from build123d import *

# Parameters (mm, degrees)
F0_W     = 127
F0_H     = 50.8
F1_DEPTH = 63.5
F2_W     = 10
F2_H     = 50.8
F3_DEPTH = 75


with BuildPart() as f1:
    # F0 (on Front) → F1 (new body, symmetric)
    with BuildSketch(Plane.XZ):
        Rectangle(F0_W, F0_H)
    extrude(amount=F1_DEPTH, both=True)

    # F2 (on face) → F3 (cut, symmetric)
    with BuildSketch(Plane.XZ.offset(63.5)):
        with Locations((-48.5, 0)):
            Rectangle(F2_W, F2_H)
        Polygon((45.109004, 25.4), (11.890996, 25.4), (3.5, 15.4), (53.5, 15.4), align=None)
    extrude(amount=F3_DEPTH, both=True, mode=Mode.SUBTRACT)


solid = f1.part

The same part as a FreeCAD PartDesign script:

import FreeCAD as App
import Part
import Sketcher

V = App.Vector
Q = App.Units.Quantity

doc = App.newDocument("Part")
body = doc.addObject("PartDesign::Body", "Body")

# Sketch on XZ plane
sketch1 = body.newObject("Sketcher::SketchObject", "Sketch")
sketch1.AttachmentSupport = (doc.getObject("XZ_Plane"), [""])
sketch1.MapMode = "FlatFace"
sketch1.addGeometry([
    Part.LineSegment(V(-64, 25, 0), V(-64, -25, 0)),
    Part.LineSegment(V(-64, -25, 0), V(64, -25, 0)),
    Part.LineSegment(V(64, -25, 0), V(64, 25, 0)),
    Part.LineSegment(V(64, 25, 0), V(-64, 25, 0)),
], False)
sketch1.addConstraint([
    Sketcher.Constraint("Coincident", 0, 2, 1, 1),
    Sketcher.Constraint("Coincident", 1, 2, 2, 1),
    Sketcher.Constraint("Coincident", 2, 2, 3, 1),
    Sketcher.Constraint("Coincident", 3, 2, 0, 1),
    Sketcher.Constraint("Vertical", 0),
    Sketcher.Constraint("Horizontal", 1),
    Sketcher.Constraint("Vertical", 2),
    Sketcher.Constraint("Horizontal", 3),
    Sketcher.Constraint("Symmetric", 0, 2, 2, 2, -1, 1),
    Sketcher.Constraint("DistanceX", 1, 1, 1, 2, Q("127 mm")),
    Sketcher.Constraint("DistanceY", 0, 2, 0, 1, Q("50.8 mm")),
])
pad1 = body.newObject("PartDesign::Pad", "Pad")
pad1.Profile = sketch1
pad1.Length = 127
pad1.Midplane = True

# Sketch on XZ plane
sketch2 = body.newObject("Sketcher::SketchObject", "Sketch001")
sketch2.AttachmentSupport = (doc.getObject("XZ_Plane"), [""])
sketch2.MapMode = "FlatFace"
sketch2.AttachmentOffset = App.Placement(V(0, 0, 63.5), App.Rotation())
sketch2.addGeometry([
    Part.LineSegment(V(-54, 25, 0), V(-54, -25, 0)),  # 0
    Part.LineSegment(V(-54, -25, 0), V(-44, -25, 0)),  # 1
    Part.LineSegment(V(-44, -25, 0), V(-44, 25, 0)),  # 2
    Part.LineSegment(V(-44, 25, 0), V(-54, 25, 0)),  # 3
    Part.LineSegment(V(45, 25, 0), V(12, 25, 0)),  # 4
    Part.LineSegment(V(12, 25, 0), V(4, 15, 0)),  # 5
    Part.LineSegment(V(4, 15, 0), V(54, 15, 0)),  # 6
    Part.LineSegment(V(54, 15, 0), V(45, 25, 0)),  # 7
], False)
sketch2.addConstraint([
    Sketcher.Constraint("Coincident", 0, 2, 1, 1),
    Sketcher.Constraint("Coincident", 1, 2, 2, 1),
    Sketcher.Constraint("Coincident", 2, 2, 3, 1),
    Sketcher.Constraint("Coincident", 3, 2, 0, 1),
    Sketcher.Constraint("Coincident", 4, 2, 5, 1),
    Sketcher.Constraint("Coincident", 5, 2, 6, 1),
    Sketcher.Constraint("Coincident", 6, 2, 7, 1),
    Sketcher.Constraint("Coincident", 7, 2, 4, 1),
    Sketcher.Constraint("Vertical", 0),
    Sketcher.Constraint("Horizontal", 1),
    Sketcher.Constraint("Vertical", 2),
    Sketcher.Constraint("Horizontal", 3),
    Sketcher.Constraint("Horizontal", 4),
    Sketcher.Constraint("Horizontal", 6),
    Sketcher.Constraint("Horizontal", 3, 2, 4, 2),
    Sketcher.Constraint("Equal", 5, 7),
    Sketcher.Constraint("DistanceX", 1, 1, 1, 2, Q("10 mm")),
    Sketcher.Constraint("DistanceX", 6, 1, 6, 2, Q("50 mm")),
    Sketcher.Constraint("Angle", 5, Q("-129.999999 deg")),
    Sketcher.Constraint("DistanceY", 0, 2, 0, 1, Q("50.8 mm")),
    Sketcher.Constraint("DistanceY", 5, 2, 4, 2, Q("10 mm")),
    Sketcher.Constraint("DistanceX", 2, 2, 5, 2, Q("47 mm")),
    Sketcher.Constraint("DistanceX", 0, 2, -1, 1, Q("53.5 mm")),
    Sketcher.Constraint("DistanceY", 0, 2, -1, 1, Q("25.4 mm")),
])
pocket1 = body.newObject("PartDesign::Pocket", "Pocket")
pocket1.Profile = sketch2
pocket1.Length = 150
pocket1.Midplane = True

doc.recompute()
